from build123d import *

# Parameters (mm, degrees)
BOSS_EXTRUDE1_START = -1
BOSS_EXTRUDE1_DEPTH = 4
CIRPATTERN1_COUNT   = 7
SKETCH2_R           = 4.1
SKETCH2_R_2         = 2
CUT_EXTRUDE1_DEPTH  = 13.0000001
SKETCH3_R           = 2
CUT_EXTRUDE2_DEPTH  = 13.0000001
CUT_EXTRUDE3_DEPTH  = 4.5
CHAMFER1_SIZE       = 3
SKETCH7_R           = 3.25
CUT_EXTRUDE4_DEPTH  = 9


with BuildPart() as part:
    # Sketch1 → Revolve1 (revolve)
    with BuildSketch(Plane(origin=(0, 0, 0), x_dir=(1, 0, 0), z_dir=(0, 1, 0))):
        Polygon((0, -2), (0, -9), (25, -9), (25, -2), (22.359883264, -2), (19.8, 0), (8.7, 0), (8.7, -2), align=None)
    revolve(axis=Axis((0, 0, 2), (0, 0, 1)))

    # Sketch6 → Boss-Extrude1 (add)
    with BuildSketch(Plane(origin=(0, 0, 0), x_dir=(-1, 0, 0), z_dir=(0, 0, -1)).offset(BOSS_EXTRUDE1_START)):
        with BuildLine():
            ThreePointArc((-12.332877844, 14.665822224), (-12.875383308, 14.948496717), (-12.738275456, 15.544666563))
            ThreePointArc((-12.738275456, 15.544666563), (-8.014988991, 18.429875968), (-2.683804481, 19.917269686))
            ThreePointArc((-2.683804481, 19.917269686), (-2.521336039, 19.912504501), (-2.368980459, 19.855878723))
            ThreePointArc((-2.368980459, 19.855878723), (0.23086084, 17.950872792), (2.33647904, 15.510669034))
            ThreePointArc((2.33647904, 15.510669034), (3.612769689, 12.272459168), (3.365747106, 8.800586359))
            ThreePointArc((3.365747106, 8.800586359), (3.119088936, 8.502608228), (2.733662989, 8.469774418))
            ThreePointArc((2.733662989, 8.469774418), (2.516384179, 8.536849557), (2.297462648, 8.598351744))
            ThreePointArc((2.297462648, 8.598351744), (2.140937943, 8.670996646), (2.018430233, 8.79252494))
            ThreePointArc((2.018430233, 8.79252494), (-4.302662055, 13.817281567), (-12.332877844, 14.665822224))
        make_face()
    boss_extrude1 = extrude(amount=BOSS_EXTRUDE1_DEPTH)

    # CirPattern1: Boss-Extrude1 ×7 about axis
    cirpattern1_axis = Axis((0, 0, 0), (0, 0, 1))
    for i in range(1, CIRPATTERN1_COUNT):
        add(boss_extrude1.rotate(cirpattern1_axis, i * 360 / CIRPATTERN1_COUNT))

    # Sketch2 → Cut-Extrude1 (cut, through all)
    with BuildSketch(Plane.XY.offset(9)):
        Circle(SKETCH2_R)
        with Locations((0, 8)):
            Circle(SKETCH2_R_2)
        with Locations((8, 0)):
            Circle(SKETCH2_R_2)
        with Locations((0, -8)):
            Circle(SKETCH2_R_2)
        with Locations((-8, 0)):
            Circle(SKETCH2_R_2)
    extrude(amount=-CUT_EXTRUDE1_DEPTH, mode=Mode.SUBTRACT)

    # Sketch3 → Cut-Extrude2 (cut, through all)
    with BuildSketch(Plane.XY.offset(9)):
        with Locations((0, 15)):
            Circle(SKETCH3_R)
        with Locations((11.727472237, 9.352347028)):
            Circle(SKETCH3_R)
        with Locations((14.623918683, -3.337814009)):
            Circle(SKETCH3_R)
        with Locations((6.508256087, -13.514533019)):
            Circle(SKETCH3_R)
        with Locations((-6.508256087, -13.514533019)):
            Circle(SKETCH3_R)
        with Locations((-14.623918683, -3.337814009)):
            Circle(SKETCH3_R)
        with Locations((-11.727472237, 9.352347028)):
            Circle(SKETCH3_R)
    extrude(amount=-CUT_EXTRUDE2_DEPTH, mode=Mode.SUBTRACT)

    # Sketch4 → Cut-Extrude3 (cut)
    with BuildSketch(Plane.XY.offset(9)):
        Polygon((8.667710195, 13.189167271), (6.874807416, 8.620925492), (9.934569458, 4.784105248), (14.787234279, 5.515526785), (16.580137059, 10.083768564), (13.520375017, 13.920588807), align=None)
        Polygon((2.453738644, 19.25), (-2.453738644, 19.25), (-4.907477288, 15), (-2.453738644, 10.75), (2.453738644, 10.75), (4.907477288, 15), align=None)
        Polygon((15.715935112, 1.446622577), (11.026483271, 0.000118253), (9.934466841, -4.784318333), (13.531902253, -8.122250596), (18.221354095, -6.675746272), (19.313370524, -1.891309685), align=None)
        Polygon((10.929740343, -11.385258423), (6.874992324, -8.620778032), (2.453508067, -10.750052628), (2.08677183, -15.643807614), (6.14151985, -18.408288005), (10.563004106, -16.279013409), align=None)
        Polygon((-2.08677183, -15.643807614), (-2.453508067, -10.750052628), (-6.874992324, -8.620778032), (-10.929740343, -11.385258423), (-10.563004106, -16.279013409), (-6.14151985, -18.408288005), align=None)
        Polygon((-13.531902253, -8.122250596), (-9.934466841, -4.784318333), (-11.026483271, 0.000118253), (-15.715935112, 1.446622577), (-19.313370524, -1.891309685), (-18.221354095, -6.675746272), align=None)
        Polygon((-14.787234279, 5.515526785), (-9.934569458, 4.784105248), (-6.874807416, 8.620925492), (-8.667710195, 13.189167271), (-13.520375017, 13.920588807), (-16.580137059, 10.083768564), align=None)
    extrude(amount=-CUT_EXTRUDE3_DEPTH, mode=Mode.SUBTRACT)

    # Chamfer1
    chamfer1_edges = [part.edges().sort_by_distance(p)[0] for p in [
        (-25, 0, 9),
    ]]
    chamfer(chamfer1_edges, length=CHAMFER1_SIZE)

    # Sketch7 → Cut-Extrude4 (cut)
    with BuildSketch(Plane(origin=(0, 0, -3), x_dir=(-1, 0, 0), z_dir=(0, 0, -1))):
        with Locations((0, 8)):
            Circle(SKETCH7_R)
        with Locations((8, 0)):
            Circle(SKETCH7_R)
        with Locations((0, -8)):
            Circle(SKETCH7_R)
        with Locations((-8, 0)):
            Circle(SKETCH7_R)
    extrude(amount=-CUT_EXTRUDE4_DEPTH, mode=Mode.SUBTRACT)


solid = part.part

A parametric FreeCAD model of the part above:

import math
import FreeCAD as App
import Part
import Sketcher
from FreeCAD import Vector
Q = App.Units.Quantity


def edges_at(feature, points):
    """Names of the edges that pass closest to the given points."""
    edges = feature.Shape.Edges
    near = lambda p: min(range(len(edges)), key=lambda i: edges[i].distToShape(Part.Vertex(*p))[0])
    return sorted({f"Edge{near(p) + 1}" for p in points})


def add_polygon(sketch, points):
    """Adds a closed chain of lines whose ends are joined by coincident constraints."""
    first, n = sketch.GeometryCount, len(points)
    for a, b in zip(points, points[1:] + points[:1]):
        sketch.addGeometry(Part.LineSegment(App.Vector(*a, 0), App.Vector(*b, 0)), False)
    for i in range(n):
        sketch.addConstraint(Sketcher.Constraint("Coincident", first + i, 2, first + (i + 1) % n, 1))

doc = App.newDocument("Part")
body = doc.addObject("PartDesign::Body", "Body")

# Sketch on XZ plane
sketch1 = body.newObject("Sketcher::SketchObject", "Sketch")
sketch1.AttachmentSupport = (doc.getObject("XZ_Plane"), [""])
sketch1.MapMode = "FlatFace"
add_polygon(sketch1, [(0, 2), (0, 9), (25, 9), (25, 2), (22.4, 2), (19.8, 0), (8.7, 0), (8.7, 2)])  # lines 0-7
sketch1.addConstraint([
    Sketcher.Constraint("Vertical", 0),
    Sketcher.Constraint("Horizontal", 1),
    Sketcher.Constraint("Vertical", 2),
    Sketcher.Constraint("Horizontal", 3),
    Sketcher.Constraint("Horizontal", 5),
    Sketcher.Constraint("Vertical", 6),
    Sketcher.Constraint("Horizontal", 7),
    Sketcher.Constraint("PointOnObject", 0, 2, -2),
    Sketcher.Constraint("PointOnObject", 4, 2, -1),
    Sketcher.Constraint("Horizontal", 3, 2, 6, 2),
    Sketcher.Constraint("DistanceX", 1, 1, 1, 2, Q("25 mm")),
    Sketcher.Constraint("DistanceY", 0, 1, 0, 2, Q("7 mm")),
    Sketcher.Constraint("DistanceY", 6, 1, 6, 2, Q("2 mm")),
    Sketcher.Constraint("Angle", 4, Q("-142 deg")),
    Sketcher.Constraint("DistanceX", 5, 2, 5, 1, Q("11.1 mm")),
    Sketcher.Constraint("DistanceX", 7, 2, 7, 1, Q("8.7 mm")),
])
revolution = body.newObject("PartDesign::Revolution", "Revolution")
revolution.Profile = sketch1
revolution.ReferenceAxis = (sketch1, ["V_Axis"])
revolution.Angle = 360

# Sketch on XY plane
sketch2 = body.newObject("Sketcher::SketchObject", "Sketch001")
sketch2.AttachmentSupport = (doc.getObject("XY_Plane"), [""])
sketch2.MapMode = "FlatFace"
sketch2.AttachmentOffset = App.Placement(Vector(0, 0, 1), App.Rotation())
sketch2.addGeometry([
    Part.ArcOfCircle(Part.Circle(Vector(12.42, 15.16, 0), Vector(0, 0, 1), 0.5), math.radians(-100), math.radians(51)),  # 0
    Part.ArcOfCircle(Part.Circle(Vector(9.78, 0.44, 0), Vector(0, 0, 1), 14.45), math.radians(80), math.radians(145)),  # 1
    Part.ArcOfCircle(Part.Circle(Vector(-2.43, 9.08, 0), Vector(0, 0, 1), 0.5), math.radians(-75), math.radians(-35)),  # 2
    Part.ArcOfCircle(Part.Circle(Vector(0, 0, 0), Vector(0, 0, 1), 8.9), math.radians(104.96), math.radians(107.89)),  # 3
    Part.ArcOfCircle(Part.Circle(Vector(-2.89, 8.95, 0), Vector(0, 0, 1), 0.5), math.radians(-163), math.radians(-72)),  # 4
    Part.ArcOfCircle(Part.Circle(Vector(4.16, 11.08, 0), Vector(0, 0, 1), 7.86), math.radians(146), math.radians(197)),  # 5
    Part.ArcOfCircle(Part.Circle(Vector(9.44, 7.47, 0), Vector(0, 0, 1), 14.26), math.radians(120), math.radians(146)),  # 6
    Part.ArcOfCircle(Part.Circle(Vector(2.62, 19.42, 0), Vector(0, 0, 1), 0.5), math.radians(82), math.radians(120)),  # 7
    Part.ArcOfCircle(Part.Circle(Vector(0, 0, 0), Vector(0, 0, 1), 20.1), math.radians(51), math.radians(82)),  # 8
], False)
sketch2.addConstraint([
    Sketcher.Constraint("Tangent", 0, 1, 1, 1),
    Sketcher.Constraint("Tangent", 1, 2, 2, 2),
    Sketcher.Constraint("Tangent", 2, 1, 3, 1),
    Sketcher.Constraint("Tangent", 3, 2, 4, 2),
    Sketcher.Constraint("Tangent", 4, 1, 5, 2),
    Sketcher.Constraint("Tangent", 5, 1, 6, 2),
    Sketcher.Constraint("Tangent", 6, 1, 7, 2),
    Sketcher.Constraint("Tangent", 7, 1, 8, 2),
    Sketcher.Constraint("Tangent", 8, 1, 0, 2),
    Sketcher.Constraint("Coincident", 3, 3, -1, 1),
    Sketcher.Constraint("Coincident", 8, 3, -1, 1),
    Sketcher.Constraint("Equal", 0, 2),
    Sketcher.Constraint("Equal", 2, 4),
    Sketcher.Constraint("Equal", 4, 7),
    Sketcher.Constraint("Radius", 0, Q("0.5 mm")),
    Sketcher.Constraint("Radius", 1, Q("14.45 mm")),
    Sketcher.Constraint("Radius", 6, Q("14.259999 mm")),
    Sketcher.Constraint("DistanceX", 2, 3, 6, 3, Q("11.87 mm")),
    Sketcher.Constraint("Radius", 3, Q("8.899997 mm")),
    Sketcher.Constraint("Radius", 5, Q("7.861064 mm")),
    Sketcher.Constraint("Radius", 8, Q("20.097274 mm")),
    Sketcher.Constraint("DistanceY", 4, 3, 2, 3, Q("0.135801 mm")),
    Sketcher.Constraint("DistanceX", 4, 3, 0, 3, Q("15.308599 mm")),
    Sketcher.Constraint("DistanceY", 1, 3, 5, 3, Q("10.636699 mm")),
    Sketcher.Constraint("DistanceX", 3, 2, 2, 1, Q("0.4362 mm")),
])
pad1 = body.newObject("PartDesign::Pad", "Pad")
pad1.Profile = sketch2
pad1.Length = 4
pad1.Reversed = True
doc.recompute()

polarpattern = body.newObject("PartDesign::PolarPattern", "PolarPattern")
polarpattern.Originals = [pad1]
polarpattern.Axis = (doc.getObject("Z_Axis"), [""])
polarpattern.Angle = 360
polarpattern.Occurrences = 7
body.Tip = polarpattern

# Sketch on XY plane
sketch3 = body.newObject("Sketcher::SketchObject", "Sketch002")
sketch3.AttachmentSupport = (doc.getObject("XY_Plane"), [""])
sketch3.MapMode = "FlatFace"
sketch3.AttachmentOffset = App.Placement(Vector(0, 0, 9), App.Rotation())
sketch3.addGeometry([
    Part.Circle(Vector(0, 0, 0), Vector(0, 0, 1), 4.1),  # 0
    Part.Circle(Vector(0, 8, 0), Vector(0, 0, 1), 2),  # 1
    Part.Circle(Vector(8, 0, 0), Vector(0, 0, 1), 2),  # 2
    Part.Circle(Vector(0, -8, 0), Vector(0, 0, 1), 2),  # 3
    Part.Circle(Vector(-8, 0, 0), Vector(0, 0, 1), 2),  # 4
], False)
sketch3.addConstraint([
    Sketcher.Constraint("Coincident", 0, 3, -1, 1),
    Sketcher.Constraint("Equal", 1, 2),
    Sketcher.Constraint("Equal", 2, 3),
    Sketcher.Constraint("Equal", 3, 4),
    Sketcher.Constraint("Symmetric", 1, 3, 3, 3, -1, 1),
    Sketcher.Constraint("Symmetric", 2, 3, 4, 3, -1, 1),
    Sketcher.Constraint("PointOnObject", 1, 3, -2),
    Sketcher.Constraint("PointOnObject", 2, 3, -1),
    Sketcher.Constraint("Diameter", 1, Q("4 mm")),
    Sketcher.Constraint("Diameter", 0, Q("8.2 mm")),
    Sketcher.Constraint("DistanceY", -1, 1, 1, 3, Q("8 mm")),
    Sketcher.Constraint("DistanceX", -1, 1, 2, 3, Q("8 mm")),
])
pocket1 = body.newObject("PartDesign::Pocket", "Pocket")
pocket1.Profile = sketch3
pocket1.Type = "ThroughAll"

# Sketch on XY plane
sketch4 = body.newObject("Sketcher::SketchObject", "Sketch003")
sketch4.AttachmentSupport = (doc.getObject("XY_Plane"), [""])
sketch4.MapMode = "FlatFace"
sketch4.AttachmentOffset = App.Placement(Vector(0, 0, 9), App.Rotation())
sketch4.addGeometry([
    Part.Circle(Vector(0, 15, 0), Vector(0, 0, 1), 2),  # 0
    Part.Circle(Vector(11.7, 9.4, 0), Vector(0, 0, 1), 2),  # 1
    Part.Circle(Vector(14.6, -3.3, 0), Vector(0, 0, 1), 2),  # 2
    Part.Circle(Vector(6.5, -13.5, 0), Vector(0, 0, 1), 2),  # 3
    Part.Circle(Vector(-6.5, -13.5, 0), Vector(0, 0, 1), 2),  # 4
    Part.Circle(Vector(-14.6, -3.3, 0), Vector(0, 0, 1), 2),  # 5
    Part.Circle(Vector(-11.7, 9.4, 0), Vector(0, 0, 1), 2),  # 6
], False)
sketch4.addConstraint([
    Sketcher.Constraint("Equal", 0, 1),
    Sketcher.Constraint("Equal", 1, 2),
    Sketcher.Constraint("Equal", 2, 3),
    Sketcher.Constraint("Equal", 3, 4),
    Sketcher.Constraint("Equal", 4, 5),
    Sketcher.Constraint("Equal", 5, 6),
    Sketcher.Constraint("Symmetric", 3, 3, 4, 3, -2),
    Sketcher.Constraint("Symmetric", 2, 3, 5, 3, -2),
    Sketcher.Constraint("Symmetric", 1, 3, 6, 3, -2),
    Sketcher.Constraint("PointOnObject", 0, 3, -2),
    Sketcher.Constraint("Diameter", 0, Q("4 mm")),
    Sketcher.Constraint("DistanceY", -1, 1, 0, 3, Q("15 mm")),
    Sketcher.Constraint("DistanceX", -1, 1, 2, 3, Q("14.623919 mm")),
    Sketcher.Constraint("DistanceY", 2, 3, 1, 3, Q("12.690161 mm")),
    Sketcher.Constraint("DistanceY", 3, 3, 2, 3, Q("10.176719 mm")),
    Sketcher.Constraint("DistanceX", 4, 3, 1, 3, Q("18.235728 mm")),
    Sketcher.Constraint("DistanceX", 5, 3, 1, 3, Q("26.351391 mm")),
    Sketcher.Constraint("DistanceY", -1, 1, 1, 3, Q("9.352347 mm")),
])
pocket2 = body.newObject("PartDesign::Pocket", "Pocket001")
pocket2.Profile = sketch4
pocket2.Type = "ThroughAll"

# Sketch on XY plane
sketch5 = body.newObject("Sketcher::SketchObject", "Sketch004")
sketch5.AttachmentSupport = (doc.getObject("XY_Plane"), [""])
sketch5.MapMode = "FlatFace"
sketch5.AttachmentOffset = App.Placement(Vector(0, 0, 9), App.Rotation())
add_polygon(sketch5, [(8.7, 13.2), (6.9, 8.6), (9.9, 4.8), (14.8, 5.5), (16.6, 10.1), (13.5, 13.9)])  # lines 0-5
add_polygon(sketch5, [(2.5, 19.2), (-2.5, 19.2), (-4.9, 15), (-2.5, 10.8), (2.5, 10.8), (4.9, 15)])  # lines 6-11
add_polygon(sketch5, [(15.7, 1.4), (11, 0), (9.9, -4.8), (13.5, -8.1), (18.2, -6.7), (19.3, -1.9)])  # lines 12-17
add_polygon(sketch5, [(10.9, -11.4), (6.9, -8.6), (2.5, -10.8), (2.1, -15.6), (6.1, -18.4), (10.6, -16.3)])  # lines 18-23
add_polygon(sketch5, [(-2.1, -15.6), (-2.5, -10.8), (-6.9, -8.6), (-10.9, -11.4), (-10.6, -16.3), (-6.1, -18.4)])  # lines 24-29
add_polygon(sketch5, [(-13.5, -8.1), (-9.9, -4.8), (-11, 0), (-15.7, 1.4), (-19.3, -1.9), (-18.2, -6.7)])  # lines 30-35
add_polygon(sketch5, [(-14.8, 5.5), (-9.9, 4.8), (-6.9, 8.6), (-8.7, 13.2), (-13.5, 13.9), (-16.6, 10.1)])  # lines 36-41
sketch5.addConstraint([
    Sketcher.Constraint("Horizontal", 6),
    Sketcher.Constraint("Horizontal", 9),
    Sketcher.Constraint("Symmetric", 7, 2, 10, 2, -2),
    Sketcher.Constraint("Symmetric", 19, 2, 24, 2, -2),
    Sketcher.Constraint("Symmetric", 18, 2, 25, 2, -2),
    Sketcher.Constraint("Symmetric", 23, 2, 26, 2, -2),
    Sketcher.Constraint("Symmetric", 22, 2, 27, 2, -2),
    Sketcher.Constraint("Symmetric", 21, 2, 28, 2, -2),
    Sketcher.Constraint("Symmetric", 20, 2, 29, 2, -2),
    Sketcher.Constraint("Symmetric", 13, 2, 30, 2, -2),
    Sketcher.Constraint("Symmetric", 12, 2, 31, 2, -2),
    Sketcher.Constraint("Symmetric", 17, 2, 32, 2, -2),
    Sketcher.Constraint("Symmetric", 16, 2, 33, 2, -2),
    Sketcher.Constraint("Symmetric", 15, 2, 34, 2, -2),
    Sketcher.Constraint("Symmetric", 14, 2, 35, 2, -2),
    Sketcher.Constraint("Symmetric", 1, 2, 36, 2, -2),
    Sketcher.Constraint("Symmetric", 0, 2, 37, 2, -2),
    Sketcher.Constraint("Symmetric", 5, 2, 38, 2, -2),
    Sketcher.Constraint("Symmetric", 4, 2, 39, 2, -2),
    Sketcher.Constraint("Symmetric", 3, 2, 40, 2, -2),
    Sketcher.Constraint("Symmetric", 2, 2, 41, 2, -2),
    Sketcher.Constraint("Parallel", 0, 3),
    Sketcher.Constraint("Parallel", 1, 4),
    Sketcher.Constraint("Parallel", 2, 5),
    Sketcher.Constraint("Parallel", 7, 10),
    Sketcher.Constraint("Parallel", 8, 11),
    Sketcher.Constraint("Parallel", 12, 15),
    Sketcher.Constraint("Parallel", 13, 16),
    Sketcher.Constraint("Parallel", 14, 17),
    Sketcher.Constraint("Parallel", 18, 21),
    Sketcher.Constraint("Parallel", 19, 22),
    Sketcher.Constraint("Parallel", 20, 23),
    Sketcher.Constraint("Vertical", 6, 2, 8, 2),
    Sketcher.Constraint("Vertical", 9, 2, 11, 2),
    Sketcher.Constraint("Equal", 0, 1),
    Sketcher.Constraint("Equal", 1, 2),
    Sketcher.Constraint("Equal", 2, 3),
    Sketcher.Constraint("Equal", 5, 7),
    Sketcher.Constraint("Equal", 11, 12),
    Sketcher.Constraint("Equal", 12, 13),
    Sketcher.Constraint("Equal", 13, 14),
    Sketcher.Constraint("Equal", 14, 15),
    Sketcher.Constraint("Equal", 17, 18),
    Sketcher.Constraint("Equal", 18, 19),
    Sketcher.Constraint("Equal", 19, 20),
    Sketcher.Constraint("Equal", 20, 21),
    Sketcher.Constraint("Angle", 7, Q("-120 deg")),
    Sketcher.Constraint("DistanceY", -1, 1, 7, 2, Q("15 mm")),
    Sketcher.Constraint("DistanceY", 8, 2, 6, 2, Q("8.5 mm")),
    Sketcher.Constraint("DistanceY", 2, 2, 0, 2, Q("3.105399 mm")),
    Sketcher.Constraint("DistanceX", 2, 2, 17, 2, Q("0.928701 mm")),
    Sketcher.Constraint("DistanceY", 18, 2, 17, 2, Q("10.067401 mm")),
    Sketcher.Constraint("DistanceX", 22, 2, 14, 2, Q("2.968898 mm")),
    Sketcher.Constraint("DistanceX", 24, 2, 18, 2, Q("9.3285 mm")),
    Sketcher.Constraint("DistanceX", 40, 2, 32, 2, Q("0.864202 mm")),
    Sketcher.Constraint("DistanceX", 6, 2, 6, 1, Q("4.907477 mm")),
    Sketcher.Constraint("DistanceX", -1, 1, 1, 2, Q("9.934569 mm")),
    Sketcher.Constraint("DistanceY", -1, 1, 3, 2, Q("10.083769 mm")),
    Sketcher.Constraint("DistanceY", -1, 1, 4, 2, Q("13.920589 mm")),
    Sketcher.Constraint("DistanceY", -1, 1, 12, 2, Q("0.000118 mm")),
    Sketcher.Constraint("DistanceY", 13, 2, -1, 1, Q("4.784318 mm")),
    Sketcher.Constraint("DistanceY", 14, 2, -1, 1, Q("8.122251 mm")),
    Sketcher.Constraint("DistanceY", 16, 2, -1, 1, Q("1.89131 mm")),
    Sketcher.Constraint("DistanceX", -1, 1, 19, 2, Q("2.453508 mm")),
    Sketcher.Constraint("DistanceX", -1, 1, 20, 2, Q("2.086772 mm")),
])
pocket3 = body.newObject("PartDesign::Pocket", "Pocket002")
pocket3.Profile = sketch5
pocket3.Length = 4.5
doc.recompute()

chamfer = body.newObject("PartDesign::Chamfer", "Chamfer")
chamfer.Base = (pocket3, edges_at(pocket3, [(-25, 0, 9)]))
chamfer.Size = 3

# Sketch on XY plane
sketch6 = body.newObject("Sketcher::SketchObject", "Sketch005")
sketch6.AttachmentSupport = (doc.getObject("XY_Plane"), [""])
sketch6.MapMode = "FlatFace"
sketch6.AttachmentOffset = App.Placement(Vector(0, 0, -3), App.Rotation())
sketch6.addGeometry([
    Part.Circle(Vector(0, 8, 0), Vector(0, 0, 1), 3.2),
    Part.Circle(Vector(-8, 0, 0), Vector(0, 0, 1), 3.2),
    Part.Circle(Vector(0, -8, 0), Vector(0, 0, 1), 3.2),
    Part.Circle(Vector(8, 0, 0), Vector(0, 0, 1), 3.2),
], False)
sketch6.addConstraint([
    Sketcher.Constraint("Equal", 0, 1),
    Sketcher.Constraint("Equal", 1, 2),
    Sketcher.Constraint("Equal", 2, 3),
    Sketcher.Constraint("Symmetric", 0, 3, 2, 3, -1, 1),
    Sketcher.Constraint("Symmetric", 1, 3, 3, 3, -1, 1),
    Sketcher.Constraint("PointOnObject", 0, 3, -2),
    Sketcher.Constraint("PointOnObject", 1, 3, -1),
    Sketcher.Constraint("Diameter", 0, Q("6.5 mm")),
    Sketcher.Constraint("DistanceY", -1, 1, 0, 3, Q("8 mm")),
    Sketcher.Constraint("DistanceX", 1, 3, -1, 1, Q("8 mm")),
])
pocket4 = body.newObject("PartDesign::Pocket", "Pocket003")
pocket4.Profile = sketch6
pocket4.Length = 9
pocket4.Reversed = True

doc.recompute()
